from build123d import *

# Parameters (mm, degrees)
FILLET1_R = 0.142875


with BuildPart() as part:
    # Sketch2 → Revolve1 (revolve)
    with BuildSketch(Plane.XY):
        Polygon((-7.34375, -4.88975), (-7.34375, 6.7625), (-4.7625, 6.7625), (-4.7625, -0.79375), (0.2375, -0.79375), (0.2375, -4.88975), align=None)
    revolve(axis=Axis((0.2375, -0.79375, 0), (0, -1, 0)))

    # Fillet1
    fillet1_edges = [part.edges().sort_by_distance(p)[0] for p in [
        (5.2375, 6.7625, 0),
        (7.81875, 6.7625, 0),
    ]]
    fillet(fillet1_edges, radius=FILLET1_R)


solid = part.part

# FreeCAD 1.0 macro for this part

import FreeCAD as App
import Part
import Sketcher

V = App.Vector


def edges_at(feature, points):
    """Names of the edges that pass closest to the given points."""
    edges = feature.Shape.Edges
    near = lambda p: min(range(len(edges)), key=lambda i: edges[i].distToShape(Part.Vertex(*p))[0])
    return sorted({f"Edge{near(p) + 1}" for p in points})

doc = App.newDocument("Part")
params = doc.addObject("Spreadsheet::Sheet", "Params")
for row, (alias, value) in enumerate([
    ("sketch1_width", "5 mm"),
    ("revolution_angle", "360 deg"),
    ("fillet_radius", "0.142875 mm"),
], start=1):
    params.set(f"A{row}", alias)
    params.set(f"B{row}", "=" + value)
    params.setAlias(f"B{row}", alias)

body = doc.addObject("PartDesign::Body", "Body")

# Sketch on XY plane
sketch1 = doc.addObject("Sketcher::SketchObject", "Sketch")
body.addObject(sketch1)
sketch1.AttachmentSupport = (doc.XY_Plane, [""])
sketch1.MapMode = "FlatFace"
sketch1.addGeometry(Part.LineSegment(V(-7.34375, 6.7625, 0), V(-7.34375, -4.88975, 0)), False)
sketch1.addGeometry(Part.LineSegment(V(-7.34375, -4.88975, 0), V(0.2375, -4.88975, 0)), False)
sketch1.addGeometry(Part.LineSegment(V(0.2375, -4.88975, 0), V(0.2375, -0.79375, 0)), False)
sketch1.addGeometry(Part.LineSegment(V(0.2375, -0.79375, 0), V(-4.7625, -0.79375, 0)), False)
sketch1.addGeometry(Part.LineSegment(V(-4.7625, -0.79375, 0), V(-4.7625, 6.7625, 0)), False)
sketch1.addGeometry(Part.LineSegment(V(-4.7625, 6.7625, 0), V(-7.34375, 6.7625, 0)), False)
sketch1.addGeometry(Part.LineSegment(V(0.2375, 6.7625, 0), V(0.2375, -4.88975, 0)), True)  # axis
sketch1.addConstraint(Sketcher.Constraint("Coincident", 0, 2, 1, 1))
sketch1.addConstraint(Sketcher.Constraint("Coincident", 1, 2, 2, 1))
sketch1.addConstraint(Sketcher.Constraint("Coincident", 2, 2, 3, 1))
sketch1.addConstraint(Sketcher.Constraint("Coincident", 3, 2, 4, 1))
sketch1.addConstraint(Sketcher.Constraint("Coincident", 4, 2, 5, 1))
sketch1.addConstraint(Sketcher.Constraint("Coincident", 5, 2, 0, 1))
sketch1.addConstraint(Sketcher.Constraint("Vertical", 0))
sketch1.addConstraint(Sketcher.Constraint("Horizontal", 1))
sketch1.addConstraint(Sketcher.Constraint("Vertical", 2))
sketch1.addConstraint(Sketcher.Constraint("Horizontal", 3))
sketch1.addConstraint(Sketcher.Constraint("Vertical", 4))
sketch1.addConstraint(Sketcher.Constraint("Horizontal", 5))
sketch1.addConstraint(Sketcher.Constraint("Vertical", 6))
sketch1.addConstraint(Sketcher.Constraint("Coincident", 6, 2, 1, 2))
sketch1.addConstraint(Sketcher.Constraint("Horizontal", 5, 2, 6, 1))
sketch1.addConstraint(Sketcher.Constraint("DistanceX", 3, 2, 3, 1, 5.0))
sketch1.addConstraint(Sketcher.Constraint("DistanceY", 2, 1, 2, 2, 4.096))
sketch1.addConstraint(Sketcher.Constraint("DistanceX", 1, 1, 1, 2, 7.58125))
sketch1.addConstraint(Sketcher.Constraint("DistanceY", 0, 2, 0, 1, 11.65225))
sketch1.addConstraint(Sketcher.Constraint("DistanceX", -1, 1, 1, 2, 0.2375))
sketch1.addConstraint(Sketcher.Constraint("DistanceY", -1, 1, 4, 2, 6.7625))
sketch1.setExpression("Constraints[15]", "Params.sketch1_width")
revolution = doc.addObject("PartDesign::Revolution", "Revolution")
body.addObject(revolution)
revolution.Profile = sketch1
revolution.ReferenceAxis = (sketch1, ["Axis0"])
revolution.setExpression("Angle", "Params.revolution_angle")
doc.recompute()

fillet = doc.addObject("PartDesign::Fillet", "Fillet")
body.addObject(fillet)
fillet.Base = (revolution, edges_at(revolution, [(5.237, 6.763, 0), (7.819, 6.763, 0)]))
fillet.setExpression("Radius", "Params.fillet_radius")

doc.recompute()
